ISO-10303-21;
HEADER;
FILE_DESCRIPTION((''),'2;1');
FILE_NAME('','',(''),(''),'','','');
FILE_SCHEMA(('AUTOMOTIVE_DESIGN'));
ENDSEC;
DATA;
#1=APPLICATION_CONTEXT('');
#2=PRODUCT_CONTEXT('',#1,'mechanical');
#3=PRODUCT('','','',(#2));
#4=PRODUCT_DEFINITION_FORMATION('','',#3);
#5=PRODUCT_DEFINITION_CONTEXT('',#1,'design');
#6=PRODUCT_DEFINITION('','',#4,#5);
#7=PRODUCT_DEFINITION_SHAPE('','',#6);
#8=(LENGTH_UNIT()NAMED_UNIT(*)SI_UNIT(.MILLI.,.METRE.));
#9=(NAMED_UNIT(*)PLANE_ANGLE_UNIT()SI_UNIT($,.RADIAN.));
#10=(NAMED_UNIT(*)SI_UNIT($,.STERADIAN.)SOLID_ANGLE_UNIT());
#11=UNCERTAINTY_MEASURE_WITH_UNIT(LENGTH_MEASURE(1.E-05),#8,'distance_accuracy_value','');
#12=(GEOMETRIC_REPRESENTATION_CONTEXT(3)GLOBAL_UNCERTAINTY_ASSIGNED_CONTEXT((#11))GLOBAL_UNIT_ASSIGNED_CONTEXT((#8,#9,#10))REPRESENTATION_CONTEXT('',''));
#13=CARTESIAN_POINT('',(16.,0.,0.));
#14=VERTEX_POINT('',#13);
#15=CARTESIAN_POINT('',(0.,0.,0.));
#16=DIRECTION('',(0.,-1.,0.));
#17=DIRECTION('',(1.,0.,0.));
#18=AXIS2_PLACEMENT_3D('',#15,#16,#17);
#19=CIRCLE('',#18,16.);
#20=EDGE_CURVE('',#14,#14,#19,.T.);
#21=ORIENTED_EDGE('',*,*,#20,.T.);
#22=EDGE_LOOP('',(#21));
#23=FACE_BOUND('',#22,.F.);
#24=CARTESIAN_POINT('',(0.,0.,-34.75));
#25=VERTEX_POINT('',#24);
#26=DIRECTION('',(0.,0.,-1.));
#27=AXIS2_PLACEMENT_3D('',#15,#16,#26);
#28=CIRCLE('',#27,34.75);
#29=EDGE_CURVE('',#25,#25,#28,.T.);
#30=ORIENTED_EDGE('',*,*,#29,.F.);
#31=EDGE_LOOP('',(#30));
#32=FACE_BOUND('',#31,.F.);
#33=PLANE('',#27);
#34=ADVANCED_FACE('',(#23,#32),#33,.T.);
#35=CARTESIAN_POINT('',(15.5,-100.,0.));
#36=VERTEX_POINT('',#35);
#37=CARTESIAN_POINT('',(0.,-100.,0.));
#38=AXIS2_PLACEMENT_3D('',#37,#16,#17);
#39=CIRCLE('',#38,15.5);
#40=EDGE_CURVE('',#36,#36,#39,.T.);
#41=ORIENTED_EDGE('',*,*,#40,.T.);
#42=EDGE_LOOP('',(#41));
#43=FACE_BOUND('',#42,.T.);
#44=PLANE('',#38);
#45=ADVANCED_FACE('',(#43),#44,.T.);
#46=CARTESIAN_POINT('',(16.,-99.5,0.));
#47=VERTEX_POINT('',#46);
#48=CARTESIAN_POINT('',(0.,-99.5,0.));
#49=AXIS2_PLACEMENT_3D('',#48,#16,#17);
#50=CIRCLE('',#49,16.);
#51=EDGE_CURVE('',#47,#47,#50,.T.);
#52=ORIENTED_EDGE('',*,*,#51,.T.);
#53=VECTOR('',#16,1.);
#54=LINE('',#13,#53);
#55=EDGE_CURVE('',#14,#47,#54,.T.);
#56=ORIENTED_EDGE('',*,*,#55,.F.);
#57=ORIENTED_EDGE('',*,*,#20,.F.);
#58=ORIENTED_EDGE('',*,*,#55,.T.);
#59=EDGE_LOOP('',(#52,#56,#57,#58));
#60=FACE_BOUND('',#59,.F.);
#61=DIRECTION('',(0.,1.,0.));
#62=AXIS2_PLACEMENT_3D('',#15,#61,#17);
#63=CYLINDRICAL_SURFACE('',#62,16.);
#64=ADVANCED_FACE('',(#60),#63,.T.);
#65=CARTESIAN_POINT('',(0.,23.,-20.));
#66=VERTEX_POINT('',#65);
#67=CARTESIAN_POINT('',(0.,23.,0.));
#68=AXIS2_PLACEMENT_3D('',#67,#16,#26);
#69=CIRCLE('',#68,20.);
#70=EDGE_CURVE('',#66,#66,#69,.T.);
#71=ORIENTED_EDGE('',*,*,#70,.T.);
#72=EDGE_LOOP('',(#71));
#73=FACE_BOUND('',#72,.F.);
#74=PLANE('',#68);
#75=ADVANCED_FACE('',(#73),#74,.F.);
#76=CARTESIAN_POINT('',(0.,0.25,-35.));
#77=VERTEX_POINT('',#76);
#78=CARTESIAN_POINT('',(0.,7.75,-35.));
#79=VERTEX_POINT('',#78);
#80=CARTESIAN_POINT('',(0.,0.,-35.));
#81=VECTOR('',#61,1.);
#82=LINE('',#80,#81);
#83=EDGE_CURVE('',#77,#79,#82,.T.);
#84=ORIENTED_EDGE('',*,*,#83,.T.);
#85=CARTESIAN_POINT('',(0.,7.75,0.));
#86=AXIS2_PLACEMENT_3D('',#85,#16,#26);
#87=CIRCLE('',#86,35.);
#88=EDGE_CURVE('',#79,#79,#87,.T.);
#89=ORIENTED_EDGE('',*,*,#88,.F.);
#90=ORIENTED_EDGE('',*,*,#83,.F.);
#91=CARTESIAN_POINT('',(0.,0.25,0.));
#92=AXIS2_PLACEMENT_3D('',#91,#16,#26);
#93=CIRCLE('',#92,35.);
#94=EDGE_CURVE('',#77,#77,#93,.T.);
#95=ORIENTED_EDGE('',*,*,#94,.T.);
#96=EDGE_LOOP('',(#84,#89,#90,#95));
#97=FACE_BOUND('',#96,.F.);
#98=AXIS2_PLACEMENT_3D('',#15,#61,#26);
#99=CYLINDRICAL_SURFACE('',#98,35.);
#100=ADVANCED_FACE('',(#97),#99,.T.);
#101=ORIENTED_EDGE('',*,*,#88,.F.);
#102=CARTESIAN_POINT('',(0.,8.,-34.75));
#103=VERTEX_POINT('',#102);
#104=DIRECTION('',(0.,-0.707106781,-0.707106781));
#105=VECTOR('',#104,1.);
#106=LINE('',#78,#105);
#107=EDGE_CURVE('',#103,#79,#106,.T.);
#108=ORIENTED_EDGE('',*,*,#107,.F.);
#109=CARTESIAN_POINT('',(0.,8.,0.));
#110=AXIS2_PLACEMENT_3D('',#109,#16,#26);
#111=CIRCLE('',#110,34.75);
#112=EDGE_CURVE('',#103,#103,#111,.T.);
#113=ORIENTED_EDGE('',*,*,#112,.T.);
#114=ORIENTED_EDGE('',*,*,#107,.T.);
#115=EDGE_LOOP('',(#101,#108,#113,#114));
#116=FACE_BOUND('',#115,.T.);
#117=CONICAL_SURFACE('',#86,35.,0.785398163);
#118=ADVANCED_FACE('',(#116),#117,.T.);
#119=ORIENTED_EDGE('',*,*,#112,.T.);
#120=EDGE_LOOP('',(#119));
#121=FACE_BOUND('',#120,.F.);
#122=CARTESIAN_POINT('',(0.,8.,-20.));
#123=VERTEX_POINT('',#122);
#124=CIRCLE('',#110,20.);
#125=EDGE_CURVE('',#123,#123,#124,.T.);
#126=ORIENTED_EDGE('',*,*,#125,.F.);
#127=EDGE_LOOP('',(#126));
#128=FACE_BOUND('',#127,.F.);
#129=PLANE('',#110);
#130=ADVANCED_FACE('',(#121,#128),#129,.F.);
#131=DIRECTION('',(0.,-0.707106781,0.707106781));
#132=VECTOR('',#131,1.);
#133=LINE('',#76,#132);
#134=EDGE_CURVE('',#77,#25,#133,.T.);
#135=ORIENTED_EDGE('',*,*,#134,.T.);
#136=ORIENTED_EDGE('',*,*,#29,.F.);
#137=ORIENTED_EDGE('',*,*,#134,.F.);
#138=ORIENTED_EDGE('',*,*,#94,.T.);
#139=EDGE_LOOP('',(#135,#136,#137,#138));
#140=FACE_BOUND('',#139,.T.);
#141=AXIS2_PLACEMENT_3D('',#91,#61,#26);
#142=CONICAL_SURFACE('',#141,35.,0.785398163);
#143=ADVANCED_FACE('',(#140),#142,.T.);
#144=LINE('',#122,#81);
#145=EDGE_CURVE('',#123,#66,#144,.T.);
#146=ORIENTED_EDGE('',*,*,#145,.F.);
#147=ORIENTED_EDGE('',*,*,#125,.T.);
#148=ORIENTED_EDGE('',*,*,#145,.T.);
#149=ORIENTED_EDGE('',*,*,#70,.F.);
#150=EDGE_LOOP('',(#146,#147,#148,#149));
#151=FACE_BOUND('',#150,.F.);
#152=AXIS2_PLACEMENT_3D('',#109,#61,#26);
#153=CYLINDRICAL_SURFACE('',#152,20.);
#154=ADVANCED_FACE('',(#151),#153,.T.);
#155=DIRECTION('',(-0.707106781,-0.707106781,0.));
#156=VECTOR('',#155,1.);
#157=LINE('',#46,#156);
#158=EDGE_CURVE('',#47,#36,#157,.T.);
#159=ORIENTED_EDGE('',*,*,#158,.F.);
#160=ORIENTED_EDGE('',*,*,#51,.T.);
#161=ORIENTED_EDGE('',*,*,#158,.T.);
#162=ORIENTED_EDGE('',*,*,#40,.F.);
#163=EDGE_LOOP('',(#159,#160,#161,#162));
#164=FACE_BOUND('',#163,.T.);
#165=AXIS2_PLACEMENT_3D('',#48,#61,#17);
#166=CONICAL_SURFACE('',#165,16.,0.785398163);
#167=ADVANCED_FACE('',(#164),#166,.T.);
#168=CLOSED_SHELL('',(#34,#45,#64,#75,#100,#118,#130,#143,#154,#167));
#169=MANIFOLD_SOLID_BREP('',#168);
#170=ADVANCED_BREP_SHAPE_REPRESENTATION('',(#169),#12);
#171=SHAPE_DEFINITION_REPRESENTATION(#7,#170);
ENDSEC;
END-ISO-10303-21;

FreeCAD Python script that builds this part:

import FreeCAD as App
import Part
import Sketcher

V = App.Vector
Q = App.Units.Quantity


def edges_at(feature, points):
    """Names of the edges that pass closest to the given points."""
    edges = feature.Shape.Edges
    near = lambda p: min(range(len(edges)), key=lambda i: edges[i].distToShape(Part.Vertex(*p))[0])
    return sorted({f"Edge{near(p) + 1}" for p in points})


def add_polygon(sketch, points):
    """Adds a closed chain of lines whose ends are joined by coincident constraints."""
    first, n = sketch.GeometryCount, len(points)
    for a, b in zip(points, points[1:] + points[:1]):
        sketch.addGeometry(Part.LineSegment(App.Vector(*a, 0), App.Vector(*b, 0)), False)
    for i in range(n):
        sketch.addConstraint(Sketcher.Constraint("Coincident", first + i, 2, first + (i + 1) % n, 1))

doc = App.newDocument("Part")
params = doc.addObject("Spreadsheet::Sheet", "Params")
for row, (alias, value) in enumerate([
    ("sketch1_width", "15 mm"),
    ("sketch1_width2", "8 mm"),
    ("sketch1_height", "20 mm"),
    ("revolution_angle", "360 deg"),
    ("chamfer_size", "0.25 mm"),
    ("sketch2_diameter", "32 mm"),
    ("pad1_length", "100 mm"),
    ("chamfer2_size", "0.5 mm"),
], start=1):
    params.set(f"A{row}", alias)
    params.set(f"B{row}", "=" + value)
    params.setAlias(f"B{row}", alias)

body = doc.addObject("PartDesign::Body", "Body")

# Sketch on YZ plane
sketch1 = body.newObject("Sketcher::SketchObject", "Sketch")
sketch1.AttachmentSupport = (doc.getObject("YZ_Plane"), [""])
sketch1.MapMode = "FlatFace"
add_polygon(sketch1, [(8, -35), (8, -20), (23, -20), (23, 0), (0, 0), (0, -35)])  # lines 0-5
sketch1.addConstraint([
    Sketcher.Constraint("Vertical", 0),
    Sketcher.Constraint("Horizontal", 1),
    Sketcher.Constraint("Vertical", 2),
    Sketcher.Constraint("Horizontal", 3),
    Sketcher.Constraint("Vertical", 4),
    Sketcher.Constraint("Horizontal", 5),
    Sketcher.Constraint("Coincident", 3, 2, -1, 1),
    Sketcher.Constraint("Equal", 1, 0),
    Sketcher.Constraint("DistanceX", 1, 1, 1, 2, Q("15 mm")),
    Sketcher.Constraint("DistanceX", 5, 1, 5, 2, Q("8 mm")),
    Sketcher.Constraint("DistanceY", 2, 1, 2, 2, Q("20 mm")),
])
sketch1.setExpression("Constraints[14]", "Params.sketch1_width")
sketch1.setExpression("Constraints[15]", "Params.sketch1_width2")
sketch1.setExpression("Constraints[16]", "Params.sketch1_height")
revolution = body.newObject("PartDesign::Revolution", "Revolution")
revolution.Profile = sketch1
revolution.ReferenceAxis = (sketch1, ["H_Axis"])
revolution.setExpression("Angle", "Params.revolution_angle")
doc.recompute()

chamfer = body.newObject("PartDesign::Chamfer", "Chamfer")
chamfer.Base = (revolution, edges_at(revolution, [(0, 8, 35), (0, 0, 35)]))
chamfer.setExpression("Size", "Params.chamfer_size")

# Sketch on XZ plane
sketch2 = body.newObject("Sketcher::SketchObject", "Sketch001")
sketch2.AttachmentSupport = (doc.getObject("XZ_Plane"), [""])
sketch2.MapMode = "FlatFace"
sketch2.addGeometry(Part.Circle(V(0, 0, 0), V(0, 0, 1), 16), False)
sketch2.addConstraint([
    Sketcher.Constraint("Coincident", 0, 3, -1, 1),
    Sketcher.Constraint("Diameter", 0, Q("32 mm")),
])
sketch2.setExpression("Constraints[1]", "Params.sketch2_diameter")
pad1 = body.newObject("PartDesign::Pad", "Pad")
pad1.Profile = sketch2
pad1.setExpression("Length", "Params.pad1_length")
doc.recompute()

chamfer2 = body.newObject("PartDesign::Chamfer", "Chamfer001")
chamfer2.Base = (pad1, edges_at(pad1, [(-16, -100, 0)]))
chamfer2.setExpression("Size", "Params.chamfer2_size")

doc.recompute()
